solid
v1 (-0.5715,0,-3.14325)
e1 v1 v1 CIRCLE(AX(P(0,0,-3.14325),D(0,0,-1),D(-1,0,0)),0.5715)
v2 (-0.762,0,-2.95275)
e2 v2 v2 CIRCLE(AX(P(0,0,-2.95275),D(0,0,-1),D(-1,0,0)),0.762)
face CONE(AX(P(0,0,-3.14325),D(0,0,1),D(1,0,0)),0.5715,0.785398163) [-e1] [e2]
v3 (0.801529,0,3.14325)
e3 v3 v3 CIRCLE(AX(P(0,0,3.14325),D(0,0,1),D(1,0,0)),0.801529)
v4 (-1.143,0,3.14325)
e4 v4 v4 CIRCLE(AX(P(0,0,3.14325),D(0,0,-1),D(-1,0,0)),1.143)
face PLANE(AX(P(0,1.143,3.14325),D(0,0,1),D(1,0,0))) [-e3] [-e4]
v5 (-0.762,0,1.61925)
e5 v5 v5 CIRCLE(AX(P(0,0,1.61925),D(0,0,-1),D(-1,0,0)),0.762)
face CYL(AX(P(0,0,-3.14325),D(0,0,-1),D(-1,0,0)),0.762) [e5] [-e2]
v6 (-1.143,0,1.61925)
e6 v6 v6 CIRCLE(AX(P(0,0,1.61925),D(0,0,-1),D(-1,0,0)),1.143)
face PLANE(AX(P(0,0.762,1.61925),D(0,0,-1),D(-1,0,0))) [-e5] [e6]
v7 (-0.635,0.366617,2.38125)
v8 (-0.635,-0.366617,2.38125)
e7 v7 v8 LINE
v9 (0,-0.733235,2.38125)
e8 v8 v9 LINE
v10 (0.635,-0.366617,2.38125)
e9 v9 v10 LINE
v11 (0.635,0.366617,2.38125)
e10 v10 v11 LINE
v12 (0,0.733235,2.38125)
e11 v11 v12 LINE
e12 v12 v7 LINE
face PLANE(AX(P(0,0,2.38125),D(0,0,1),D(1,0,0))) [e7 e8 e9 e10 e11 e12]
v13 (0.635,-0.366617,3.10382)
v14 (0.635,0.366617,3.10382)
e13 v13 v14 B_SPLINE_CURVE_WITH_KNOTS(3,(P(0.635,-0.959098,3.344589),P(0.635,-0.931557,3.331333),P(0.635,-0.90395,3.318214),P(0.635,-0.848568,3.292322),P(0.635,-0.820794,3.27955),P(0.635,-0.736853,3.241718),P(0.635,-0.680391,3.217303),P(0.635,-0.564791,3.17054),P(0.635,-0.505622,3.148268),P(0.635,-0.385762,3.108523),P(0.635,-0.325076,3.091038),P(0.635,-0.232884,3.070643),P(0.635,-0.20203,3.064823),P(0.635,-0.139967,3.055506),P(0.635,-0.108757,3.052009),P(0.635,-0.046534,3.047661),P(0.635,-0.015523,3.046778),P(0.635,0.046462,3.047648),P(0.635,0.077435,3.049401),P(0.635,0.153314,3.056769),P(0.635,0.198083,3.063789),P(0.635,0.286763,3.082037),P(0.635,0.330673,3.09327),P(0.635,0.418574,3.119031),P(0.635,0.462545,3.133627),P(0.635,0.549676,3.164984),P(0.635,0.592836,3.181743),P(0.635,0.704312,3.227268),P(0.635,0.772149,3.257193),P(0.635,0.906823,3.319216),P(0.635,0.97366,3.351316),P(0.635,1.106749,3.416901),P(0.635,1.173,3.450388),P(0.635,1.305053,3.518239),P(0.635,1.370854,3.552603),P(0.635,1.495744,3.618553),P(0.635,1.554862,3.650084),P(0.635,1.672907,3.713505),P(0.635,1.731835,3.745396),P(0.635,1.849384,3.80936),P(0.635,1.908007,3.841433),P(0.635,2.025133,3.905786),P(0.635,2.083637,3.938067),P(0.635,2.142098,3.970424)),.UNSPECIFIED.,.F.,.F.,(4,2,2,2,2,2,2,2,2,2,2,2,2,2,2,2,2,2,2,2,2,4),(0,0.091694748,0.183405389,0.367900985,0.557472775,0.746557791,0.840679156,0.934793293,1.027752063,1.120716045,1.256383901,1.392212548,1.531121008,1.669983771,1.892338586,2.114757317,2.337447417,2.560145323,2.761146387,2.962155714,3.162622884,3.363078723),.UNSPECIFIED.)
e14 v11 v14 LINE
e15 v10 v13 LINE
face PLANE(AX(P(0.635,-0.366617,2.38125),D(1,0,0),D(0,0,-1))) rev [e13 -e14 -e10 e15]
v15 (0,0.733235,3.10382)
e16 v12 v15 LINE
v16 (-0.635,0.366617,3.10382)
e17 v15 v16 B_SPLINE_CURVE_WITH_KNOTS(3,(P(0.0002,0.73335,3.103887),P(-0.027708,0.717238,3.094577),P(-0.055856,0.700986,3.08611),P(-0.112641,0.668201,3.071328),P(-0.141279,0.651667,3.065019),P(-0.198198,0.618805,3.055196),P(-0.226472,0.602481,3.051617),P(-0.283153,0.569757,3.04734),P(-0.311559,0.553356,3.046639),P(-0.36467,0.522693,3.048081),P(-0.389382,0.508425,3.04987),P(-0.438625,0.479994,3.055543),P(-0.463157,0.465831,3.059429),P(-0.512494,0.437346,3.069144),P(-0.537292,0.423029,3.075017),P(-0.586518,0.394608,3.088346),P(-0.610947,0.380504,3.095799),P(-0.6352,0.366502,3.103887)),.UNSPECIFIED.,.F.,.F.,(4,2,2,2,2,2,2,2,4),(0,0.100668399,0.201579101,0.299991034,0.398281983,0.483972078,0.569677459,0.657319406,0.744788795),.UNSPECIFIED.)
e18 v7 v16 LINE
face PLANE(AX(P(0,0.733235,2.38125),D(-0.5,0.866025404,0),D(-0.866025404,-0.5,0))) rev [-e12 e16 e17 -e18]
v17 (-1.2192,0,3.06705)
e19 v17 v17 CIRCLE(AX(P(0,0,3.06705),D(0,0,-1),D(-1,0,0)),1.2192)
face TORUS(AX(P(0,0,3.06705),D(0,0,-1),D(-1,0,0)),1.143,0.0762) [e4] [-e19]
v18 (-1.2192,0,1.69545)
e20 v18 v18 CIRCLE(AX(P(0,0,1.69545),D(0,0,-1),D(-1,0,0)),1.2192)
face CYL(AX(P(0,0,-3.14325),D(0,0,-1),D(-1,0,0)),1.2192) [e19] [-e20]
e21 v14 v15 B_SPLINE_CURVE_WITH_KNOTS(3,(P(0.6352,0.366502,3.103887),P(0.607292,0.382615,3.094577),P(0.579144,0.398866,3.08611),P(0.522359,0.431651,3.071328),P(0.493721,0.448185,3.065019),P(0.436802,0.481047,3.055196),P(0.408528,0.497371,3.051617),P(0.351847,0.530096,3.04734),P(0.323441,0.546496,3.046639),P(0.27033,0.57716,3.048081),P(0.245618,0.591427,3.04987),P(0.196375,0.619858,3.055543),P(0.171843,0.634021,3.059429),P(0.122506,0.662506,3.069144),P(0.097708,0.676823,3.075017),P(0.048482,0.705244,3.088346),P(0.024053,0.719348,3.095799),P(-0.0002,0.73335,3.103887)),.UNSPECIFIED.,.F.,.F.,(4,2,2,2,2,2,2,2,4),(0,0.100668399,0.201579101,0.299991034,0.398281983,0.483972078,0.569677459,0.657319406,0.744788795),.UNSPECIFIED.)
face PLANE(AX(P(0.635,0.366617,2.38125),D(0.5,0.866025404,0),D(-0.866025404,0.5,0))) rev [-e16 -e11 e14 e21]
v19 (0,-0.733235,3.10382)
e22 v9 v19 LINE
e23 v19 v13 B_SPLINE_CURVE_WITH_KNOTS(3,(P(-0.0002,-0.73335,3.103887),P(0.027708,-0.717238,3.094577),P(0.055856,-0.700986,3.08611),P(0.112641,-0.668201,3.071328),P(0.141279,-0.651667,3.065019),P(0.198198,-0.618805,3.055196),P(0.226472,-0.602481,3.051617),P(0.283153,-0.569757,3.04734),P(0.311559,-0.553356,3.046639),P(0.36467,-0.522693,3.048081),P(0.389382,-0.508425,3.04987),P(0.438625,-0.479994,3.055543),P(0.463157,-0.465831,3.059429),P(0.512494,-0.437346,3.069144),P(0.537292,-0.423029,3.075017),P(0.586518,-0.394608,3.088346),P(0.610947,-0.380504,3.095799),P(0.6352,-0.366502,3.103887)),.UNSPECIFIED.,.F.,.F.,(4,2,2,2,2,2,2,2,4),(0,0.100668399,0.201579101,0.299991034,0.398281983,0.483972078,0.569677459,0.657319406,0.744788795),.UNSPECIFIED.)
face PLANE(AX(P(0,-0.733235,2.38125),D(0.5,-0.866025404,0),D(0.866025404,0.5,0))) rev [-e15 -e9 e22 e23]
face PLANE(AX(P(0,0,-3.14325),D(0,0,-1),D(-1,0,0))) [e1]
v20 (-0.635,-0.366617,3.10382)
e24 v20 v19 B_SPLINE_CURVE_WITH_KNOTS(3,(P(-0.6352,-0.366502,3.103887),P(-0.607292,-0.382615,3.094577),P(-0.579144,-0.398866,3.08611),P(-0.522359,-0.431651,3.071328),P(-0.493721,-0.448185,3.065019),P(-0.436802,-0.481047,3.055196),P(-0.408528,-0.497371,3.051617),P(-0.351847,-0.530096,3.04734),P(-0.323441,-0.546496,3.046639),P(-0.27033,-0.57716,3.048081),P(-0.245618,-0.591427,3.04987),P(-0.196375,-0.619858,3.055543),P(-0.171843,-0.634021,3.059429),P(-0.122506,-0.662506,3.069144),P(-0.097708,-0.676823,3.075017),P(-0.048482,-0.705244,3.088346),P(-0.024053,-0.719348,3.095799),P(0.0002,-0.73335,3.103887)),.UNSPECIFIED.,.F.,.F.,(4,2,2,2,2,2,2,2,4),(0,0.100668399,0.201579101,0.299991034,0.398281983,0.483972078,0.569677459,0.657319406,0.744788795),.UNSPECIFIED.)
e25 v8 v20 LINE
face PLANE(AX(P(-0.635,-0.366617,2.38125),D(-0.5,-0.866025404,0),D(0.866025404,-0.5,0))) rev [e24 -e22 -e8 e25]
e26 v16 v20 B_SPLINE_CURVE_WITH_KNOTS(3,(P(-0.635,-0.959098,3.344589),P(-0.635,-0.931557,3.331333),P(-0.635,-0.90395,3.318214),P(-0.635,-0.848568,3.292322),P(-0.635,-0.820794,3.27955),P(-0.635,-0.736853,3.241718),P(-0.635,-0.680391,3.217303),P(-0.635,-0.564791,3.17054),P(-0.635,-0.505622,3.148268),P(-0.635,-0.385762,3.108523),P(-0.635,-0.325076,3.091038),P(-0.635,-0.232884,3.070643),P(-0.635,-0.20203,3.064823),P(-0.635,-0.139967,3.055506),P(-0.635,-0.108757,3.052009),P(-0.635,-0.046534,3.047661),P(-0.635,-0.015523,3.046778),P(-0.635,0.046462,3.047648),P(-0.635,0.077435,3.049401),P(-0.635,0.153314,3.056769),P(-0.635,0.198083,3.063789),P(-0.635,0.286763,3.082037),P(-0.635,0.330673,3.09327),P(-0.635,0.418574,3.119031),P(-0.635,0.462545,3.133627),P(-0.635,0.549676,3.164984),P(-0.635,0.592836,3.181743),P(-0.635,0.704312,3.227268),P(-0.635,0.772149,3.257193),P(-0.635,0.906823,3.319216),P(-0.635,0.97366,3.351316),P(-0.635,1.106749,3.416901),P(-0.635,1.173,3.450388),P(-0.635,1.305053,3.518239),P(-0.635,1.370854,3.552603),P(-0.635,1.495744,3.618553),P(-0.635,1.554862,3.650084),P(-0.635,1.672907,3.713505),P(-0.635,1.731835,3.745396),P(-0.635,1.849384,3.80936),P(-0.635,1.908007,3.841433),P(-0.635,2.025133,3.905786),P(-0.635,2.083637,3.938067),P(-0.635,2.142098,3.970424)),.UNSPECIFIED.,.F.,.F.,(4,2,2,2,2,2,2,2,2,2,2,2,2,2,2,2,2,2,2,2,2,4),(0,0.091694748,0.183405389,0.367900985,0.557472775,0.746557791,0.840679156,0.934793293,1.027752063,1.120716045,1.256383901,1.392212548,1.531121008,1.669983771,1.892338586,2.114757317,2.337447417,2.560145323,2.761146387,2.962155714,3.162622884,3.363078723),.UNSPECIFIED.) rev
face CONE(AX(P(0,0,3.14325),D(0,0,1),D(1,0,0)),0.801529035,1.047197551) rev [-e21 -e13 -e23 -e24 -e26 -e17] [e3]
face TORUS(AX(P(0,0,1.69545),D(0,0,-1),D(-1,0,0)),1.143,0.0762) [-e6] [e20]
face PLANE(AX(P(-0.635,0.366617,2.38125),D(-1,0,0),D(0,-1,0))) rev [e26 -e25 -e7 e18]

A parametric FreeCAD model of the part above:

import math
import FreeCAD as App
import Part
import Sketcher

V = App.Vector
Q = App.Units.Quantity


def add_polygon(sketch, points):
    """Adds a closed chain of lines whose ends are joined by coincident constraints."""
    first, n = sketch.GeometryCount, len(points)
    for a, b in zip(points, points[1:] + points[:1]):
        sketch.addGeometry(Part.LineSegment(App.Vector(*a, 0), App.Vector(*b, 0)), False)
    for i in range(n):
        sketch.addConstraint(Sketcher.Constraint("Coincident", first + i, 2, first + (i + 1) % n, 1))

doc = App.newDocument("Part")
params = doc.addObject("Spreadsheet::Sheet", "Params")
for row, (alias, value) in enumerate([
    ("sketch1_radius", "0.003 in"),
    ("sketch1_height", "0.18 in"),
    ("sketch1_width", "0.015 in"),
    ("sketch1_width2", "0.045 in"),
    ("sketch1_height2", "0.054 in"),
    ("revolution_angle", "360 deg"),
    ("pocket1_length", "0.03 in"),
    ("groove_angle", "360 deg"),
], start=1):
    params.set(f"A{row}", alias)
    params.set(f"B{row}", "=" + value)
    params.setAlias(f"B{row}", alias)

body = doc.addObject("PartDesign::Body", "Body")

# Sketch on YZ plane
sketch1 = body.newObject("Sketcher::SketchObject", "Sketch")
sketch1.AttachmentSupport = (doc.getObject("YZ_Plane"), [""])
sketch1.MapMode = "FlatFace"
sketch1.addGeometry(Part.LineSegment(V(0, -3.14325, 0), V(0.5715, -3.14325, 0)), False)
sketch1.addGeometry(Part.LineSegment(V(0.5715, -3.14325, 0), V(0.762, -2.95275, 0)), False)
sketch1.addGeometry(Part.LineSegment(V(0.762, -2.95275, 0), V(0.762, 1.61925, 0)), False)
sketch1.addGeometry(Part.LineSegment(V(0.762, 1.61925, 0), V(1.143, 1.61925, 0)), False)
sketch1.addGeometry(Part.ArcOfCircle(Part.Circle(V(1.143, 1.69545, 0), V(0, 0, 1), 0.0762), math.radians(-90.000001), math.radians(0.000001)), False)
sketch1.addGeometry(Part.LineSegment(V(1.2192, 1.69545, 0), V(1.2192, 3.06705, 0)), False)
sketch1.addGeometry(Part.ArcOfCircle(Part.Circle(V(1.143, 3.06705, 0), V(0, 0, 1), 0.0762), math.radians(-0.000001), math.radians(90.000001)), False)
sketch1.addGeometry(Part.LineSegment(V(1.143, 3.14325, 0), V(0, 3.14325, 0)), False)
sketch1.addGeometry(Part.LineSegment(V(0, 3.14325, 0), V(0, -3.14325, 0)), False)
sketch1.addConstraint(Sketcher.Constraint("Coincident", 0, 2, 1, 1))
sketch1.addConstraint(Sketcher.Constraint("Coincident", 1, 2, 2, 1))
sketch1.addConstraint(Sketcher.Constraint("Coincident", 2, 2, 3, 1))
sketch1.addConstraint(Sketcher.Constraint("Tangent", 3, 2, 4, 1))
sketch1.addConstraint(Sketcher.Constraint("Tangent", 4, 2, 5, 1))
sketch1.addConstraint(Sketcher.Constraint("Tangent", 5, 2, 6, 1))
sketch1.addConstraint(Sketcher.Constraint("Tangent", 6, 2, 7, 1))
sketch1.addConstraint(Sketcher.Constraint("Coincident", 7, 2, 8, 1))
sketch1.addConstraint(Sketcher.Constraint("Coincident", 8, 2, 0, 1))
sketch1.addConstraint(Sketcher.Constraint("Horizontal", 0))
sketch1.addConstraint(Sketcher.Constraint("Vertical", 2))
sketch1.addConstraint(Sketcher.Constraint("Horizontal", 3))
sketch1.addConstraint(Sketcher.Constraint("Vertical", 5))
sketch1.addConstraint(Sketcher.Constraint("Horizontal", 7))
sketch1.addConstraint(Sketcher.Constraint("Vertical", 8))
sketch1.addConstraint(Sketcher.Constraint("Equal", 4, 6))
sketch1.addConstraint(Sketcher.Constraint("Symmetric", 7, 2, 8, 2, -1, 1))
sketch1.addConstraint(Sketcher.Constraint("Angle", 1, Q("45 deg")))
sketch1.addConstraint(Sketcher.Constraint("Radius", 4, Q("0.003 in")))
sketch1.addConstraint(Sketcher.Constraint("DistanceY", 2, 1, 2, 2, Q("0.18 in")))
sketch1.addConstraint(Sketcher.Constraint("DistanceX", 3, 1, 3, 2, Q("0.015 in")))
sketch1.addConstraint(Sketcher.Constraint("DistanceX", 7, 2, 7, 1, Q("0.045 in")))
sketch1.addConstraint(Sketcher.Constraint("DistanceY", 5, 1, 5, 2, Q("0.054 in")))
sketch1.addConstraint(Sketcher.Constraint("DistanceX", 0, 1, 0, 2, Q("0.0225 in")))
sketch1.setExpression("Constraints[18]", "Params.sketch1_radius")
sketch1.setExpression("Constraints[19]", "Params.sketch1_height")
sketch1.setExpression("Constraints[20]", "Params.sketch1_width")
sketch1.setExpression("Constraints[21]", "Params.sketch1_width2")
sketch1.setExpression("Constraints[22]", "Params.sketch1_height2")
revolution = body.newObject("PartDesign::Revolution", "Revolution")
revolution.Profile = sketch1
revolution.ReferenceAxis = (sketch1, ["V_Axis"])
revolution.setExpression("Angle", "Params.revolution_angle")

# Sketch on XY plane
sketch2 = body.newObject("Sketcher::SketchObject", "Sketch001")
sketch2.AttachmentSupport = (doc.getObject("XY_Plane"), [""])
sketch2.MapMode = "FlatFace"
sketch2.AttachmentOffset = App.Placement(V(0, 0, 3.14325), App.Rotation())
add_polygon(sketch2, [(-0.635, 0.366617), (-0.635, -0.366617), (0, -0.733235), (0.635, -0.366617), (0.635, 0.366617), (0, 0.733235)])  # lines 0-5
sketch2.addConstraint(Sketcher.Constraint("Vertical", 0))
sketch2.addConstraint(Sketcher.Constraint("Vertical", 3))
sketch2.addConstraint(Sketcher.Constraint("Symmetric", 0, 2, 3, 2, -1, 1))
sketch2.addConstraint(Sketcher.Constraint("Symmetric", 1, 2, 4, 2, -1, 1))
sketch2.addConstraint(Sketcher.Constraint("PointOnObject", 1, 2, -2))
sketch2.addConstraint(Sketcher.Constraint("Parallel", 2, 5))
sketch2.addConstraint(Sketcher.Constraint("Horizontal", 0, 2, 2, 2))
sketch2.addConstraint(Sketcher.Constraint("Angle", 1, Q("-30 deg")))
sketch2.addConstraint(Sketcher.Constraint("DistanceX", 0, 2, 2, 2, Q("0.05 in")))
sketch2.addConstraint(Sketcher.Constraint("DistanceY", 0, 2, 0, 1, Q("0.733235 mm")))
pocket1 = body.newObject("PartDesign::Pocket", "Pocket")
pocket1.Profile = sketch2
pocket1.setExpression("Length", "Params.pocket1_length")

# Sketch on YZ plane
sketch3 = body.newObject("Sketcher::SketchObject", "Sketch002")
sketch3.AttachmentSupport = (doc.getObject("YZ_Plane"), [""])
sketch3.MapMode = "FlatFace"
add_polygon(sketch3, [(0, 3.14325), (-0.801529, 3.14325), (0, 2.680487)])  # lines 0-2
sketch3.addConstraint(Sketcher.Constraint("Horizontal", 0))
sketch3.addConstraint(Sketcher.Constraint("Vertical", 2))
sketch3.addConstraint(Sketcher.Constraint("PointOnObject", 1, 2, -2))
sketch3.addConstraint(Sketcher.Constraint("Angle", 1, Q("-30 deg")))
sketch3.addConstraint(Sketcher.Constraint("DistanceX", 0, 2, 0, 1, Q("0.801529 mm")))
sketch3.addConstraint(Sketcher.Constraint("DistanceY", -1, 1, 0, 2, Q("3.14325 mm")))
groove = body.newObject("PartDesign::Groove", "Groove")
groove.Profile = sketch3
groove.ReferenceAxis = (sketch3, ["V_Axis"])
groove.setExpression("Angle", "Params.groove_angle")

doc.recompute()
